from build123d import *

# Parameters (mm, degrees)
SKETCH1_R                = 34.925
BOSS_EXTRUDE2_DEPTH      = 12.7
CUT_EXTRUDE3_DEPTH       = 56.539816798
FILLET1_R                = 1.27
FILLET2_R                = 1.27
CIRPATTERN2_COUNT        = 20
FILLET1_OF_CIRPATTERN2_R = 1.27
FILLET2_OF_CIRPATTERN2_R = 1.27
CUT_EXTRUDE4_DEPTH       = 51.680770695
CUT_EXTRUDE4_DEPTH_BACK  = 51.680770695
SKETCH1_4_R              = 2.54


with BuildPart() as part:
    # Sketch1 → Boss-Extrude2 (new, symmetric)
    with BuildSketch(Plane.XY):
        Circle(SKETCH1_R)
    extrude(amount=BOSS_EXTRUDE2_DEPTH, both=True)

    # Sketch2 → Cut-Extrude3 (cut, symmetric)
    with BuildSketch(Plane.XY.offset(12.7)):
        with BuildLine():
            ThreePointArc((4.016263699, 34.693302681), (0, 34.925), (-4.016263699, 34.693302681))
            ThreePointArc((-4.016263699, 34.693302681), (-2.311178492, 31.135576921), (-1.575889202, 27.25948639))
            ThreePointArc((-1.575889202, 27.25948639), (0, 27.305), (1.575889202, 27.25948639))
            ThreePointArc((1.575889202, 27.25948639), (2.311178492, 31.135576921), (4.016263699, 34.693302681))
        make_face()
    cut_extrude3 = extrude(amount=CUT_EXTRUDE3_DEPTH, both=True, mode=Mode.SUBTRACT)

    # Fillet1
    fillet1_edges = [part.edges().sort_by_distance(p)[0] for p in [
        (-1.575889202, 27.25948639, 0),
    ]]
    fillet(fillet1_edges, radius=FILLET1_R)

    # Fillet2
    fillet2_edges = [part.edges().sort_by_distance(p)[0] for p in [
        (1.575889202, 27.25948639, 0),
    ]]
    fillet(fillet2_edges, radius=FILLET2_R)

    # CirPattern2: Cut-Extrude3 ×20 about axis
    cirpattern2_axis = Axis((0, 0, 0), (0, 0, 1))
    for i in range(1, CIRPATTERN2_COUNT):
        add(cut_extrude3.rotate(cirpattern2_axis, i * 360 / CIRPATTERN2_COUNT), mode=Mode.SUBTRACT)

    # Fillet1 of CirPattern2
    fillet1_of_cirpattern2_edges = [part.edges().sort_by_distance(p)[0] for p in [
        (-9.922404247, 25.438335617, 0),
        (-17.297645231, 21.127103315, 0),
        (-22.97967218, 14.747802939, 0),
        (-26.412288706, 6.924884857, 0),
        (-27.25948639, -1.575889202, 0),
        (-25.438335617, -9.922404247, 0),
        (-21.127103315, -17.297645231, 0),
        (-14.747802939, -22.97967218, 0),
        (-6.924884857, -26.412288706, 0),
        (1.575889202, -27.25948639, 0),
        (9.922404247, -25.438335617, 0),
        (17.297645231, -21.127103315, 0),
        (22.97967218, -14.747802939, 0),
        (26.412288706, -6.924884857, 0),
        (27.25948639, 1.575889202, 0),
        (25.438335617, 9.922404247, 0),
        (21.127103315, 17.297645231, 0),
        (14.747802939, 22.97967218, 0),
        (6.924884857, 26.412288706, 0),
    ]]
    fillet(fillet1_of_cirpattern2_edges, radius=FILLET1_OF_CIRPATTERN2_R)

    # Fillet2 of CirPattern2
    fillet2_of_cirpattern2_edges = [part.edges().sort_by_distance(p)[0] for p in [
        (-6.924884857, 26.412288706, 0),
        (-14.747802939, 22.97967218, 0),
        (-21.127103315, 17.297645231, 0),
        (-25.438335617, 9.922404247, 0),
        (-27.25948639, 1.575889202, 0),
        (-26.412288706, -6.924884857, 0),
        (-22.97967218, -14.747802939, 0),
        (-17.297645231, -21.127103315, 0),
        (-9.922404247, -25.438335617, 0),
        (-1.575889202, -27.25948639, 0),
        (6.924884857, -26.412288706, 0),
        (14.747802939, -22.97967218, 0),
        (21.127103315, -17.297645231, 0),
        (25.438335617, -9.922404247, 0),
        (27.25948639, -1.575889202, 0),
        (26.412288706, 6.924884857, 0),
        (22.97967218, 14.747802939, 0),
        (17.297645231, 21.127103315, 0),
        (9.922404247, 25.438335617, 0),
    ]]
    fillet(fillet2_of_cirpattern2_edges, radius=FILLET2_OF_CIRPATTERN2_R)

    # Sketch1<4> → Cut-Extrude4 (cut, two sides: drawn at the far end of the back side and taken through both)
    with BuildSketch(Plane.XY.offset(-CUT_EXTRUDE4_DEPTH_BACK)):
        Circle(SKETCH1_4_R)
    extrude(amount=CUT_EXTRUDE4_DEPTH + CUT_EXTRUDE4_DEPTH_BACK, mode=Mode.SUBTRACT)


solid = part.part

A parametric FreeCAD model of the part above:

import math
import FreeCAD as App
import Part
import Sketcher

V = App.Vector
Q = App.Units.Quantity


def edges_at(feature, points):
    """Names of the edges that pass closest to the given points."""
    edges = feature.Shape.Edges
    near = lambda p: min(range(len(edges)), key=lambda i: edges[i].distToShape(Part.Vertex(*p))[0])
    return sorted({f"Edge{near(p) + 1}" for p in points})

doc = App.newDocument("Part")
body = doc.addObject("PartDesign::Body", "Body")

# Sketch on XY plane
sketch1 = body.newObject("Sketcher::SketchObject", "Sketch")
sketch1.AttachmentSupport = (doc.getObject("XY_Plane"), [""])
sketch1.MapMode = "FlatFace"
sketch1.addGeometry(Part.Circle(V(0, 0, 0), V(0, 0, 1), 34.925), False)
sketch1.addConstraint(Sketcher.Constraint("Coincident", 0, 3, -1, 1))
sketch1.addConstraint(Sketcher.Constraint("Diameter", 0, Q("2.75 in")))
pad1 = body.newObject("PartDesign::Pad", "Pad")
pad1.Profile = sketch1
pad1.Length = Q("1 in")
pad1.Midplane = True

# Sketch on XY plane
sketch2 = body.newObject("Sketcher::SketchObject", "Sketch001")
sketch2.AttachmentSupport = (doc.getObject("XY_Plane"), [""])
sketch2.MapMode = "FlatFace"
sketch2.AttachmentOffset = App.Placement(V(0, 0, 0.5 * 25.4), App.Rotation())
sketch2.addGeometry(Part.ArcOfCircle(Part.Circle(V(0, 0, 0), V(0, 0, 1), 34.925), math.radians(83.396559), math.radians(96.603441)), False)
sketch2.addGeometry(Part.ArcOfCircle(Part.Circle(V(-16.799311, 26.37941, 0), V(0, 0, 1), 15.24884), math.radians(3.308625), math.radians(33.039341)), False)
sketch2.addGeometry(Part.ArcOfCircle(Part.Circle(V(0, 0, 0), V(0, 0, 1), 27.305), math.radians(86.691375), math.radians(93.308625)), False)
sketch2.addGeometry(Part.ArcOfCircle(Part.Circle(V(16.799311, 26.37941, 0), V(0, 0, 1), 15.24884), math.radians(146.960659), math.radians(176.691375)), False)
sketch2.addConstraint(Sketcher.Constraint("Coincident", 0, 2, 1, 2))
sketch2.addConstraint(Sketcher.Constraint("Coincident", 1, 1, 2, 2))
sketch2.addConstraint(Sketcher.Constraint("Coincident", 2, 1, 3, 2))
sketch2.addConstraint(Sketcher.Constraint("Coincident", 3, 1, 0, 1))
sketch2.addConstraint(Sketcher.Constraint("Coincident", 0, 3, -1, 1))
sketch2.addConstraint(Sketcher.Constraint("Coincident", 2, 3, -1, 1))
sketch2.addConstraint(Sketcher.Constraint("Radius", 0, Q("1.375 in")))
sketch2.addConstraint(Sketcher.Constraint("Radius", 2, Q("1.075 in")))
sketch2.addConstraint(Sketcher.Constraint("Radius", 1, 15.24884))
sketch2.addConstraint(Sketcher.Constraint("Radius", 3, 15.24884))
sketch2.addConstraint(Sketcher.Constraint("DistanceX", 1, 1, 3, 3, 18.375201))
sketch2.addConstraint(Sketcher.Constraint("DistanceX", 1, 3, 2, 1, 18.375201))
sketch2.addConstraint(Sketcher.Constraint("DistanceX", 1, 3, -1, 1, 16.799311))
sketch2.addConstraint(Sketcher.Constraint("DistanceY", -1, 1, 1, 3, 26.37941))
pocket1 = body.newObject("PartDesign::Pocket", "Pocket")
pocket1.Profile = sketch2
pocket1.Length = 113.079634
pocket1.Midplane = True
doc.recompute()

fillet = body.newObject("PartDesign::Fillet", "Fillet")
fillet.Base = (pocket1, edges_at(pocket1, [(-1.576, 27.259, 0)]))
fillet.Radius = Q("0.05 in")
doc.recompute()

fillet2 = body.newObject("PartDesign::Fillet", "Fillet001")
fillet2.Base = (fillet, edges_at(fillet, [(1.576, 27.259, 0)]))
fillet2.Radius = Q("0.05 in")
doc.recompute()

polarpattern = body.newObject("PartDesign::PolarPattern", "PolarPattern")
polarpattern.Originals = [pocket1]
polarpattern.Axis = (doc.getObject("Z_Axis"), [""])
polarpattern.Angle = 360
polarpattern.Occurrences = 20
body.Tip = polarpattern
doc.recompute()

fillet3 = body.newObject("PartDesign::Fillet", "Fillet002")
fillet3.Base = (polarpattern, edges_at(polarpattern, [
    (-9.922, 25.438, 0),
    (-17.298, 21.127, 0),
    (-22.98, 14.748, 0),
    (-26.412, 6.925, 0),
    (-27.259, -1.576, 0),
    (-25.438, -9.922, 0),
    (-21.127, -17.298, 0),
    (-14.748, -22.98, 0),
    (-6.925, -26.412, 0),
    (1.576, -27.259, 0),
    (9.922, -25.438, 0),
    (17.298, -21.127, 0),
    (22.98, -14.748, 0),
    (26.412, -6.925, 0),
    (27.259, 1.576, 0),
    (25.438, 9.922, 0),
    (21.127, 17.298, 0),
    (14.748, 22.98, 0),
    (6.925, 26.412, 0),
]))
fillet3.Radius = Q("0.05 in")
doc.recompute()

fillet4 = body.newObject("PartDesign::Fillet", "Fillet003")
fillet4.Base = (fillet3, edges_at(fillet3, [
    (-6.925, 26.412, 0),
    (-14.748, 22.98, 0),
    (-21.127, 17.298, 0),
    (-25.438, 9.922, 0),
    (-27.259, 1.576, 0),
    (-26.412, -6.925, 0),
    (-22.98, -14.748, 0),
    (-17.298, -21.127, 0),
    (-9.922, -25.438, 0),
    (-1.576, -27.259, 0),
    (6.925, -26.412, 0),
    (14.748, -22.98, 0),
    (21.127, -17.298, 0),
    (25.438, -9.922, 0),
    (27.259, -1.576, 0),
    (26.412, 6.925, 0),
    (22.98, 14.748, 0),
    (17.298, 21.127, 0),
    (9.922, 25.438, 0),
]))
fillet4.Radius = Q("0.05 in")

# Sketch on XY plane
sketch3 = body.newObject("Sketcher::SketchObject", "Sketch002")
sketch3.AttachmentSupport = (doc.getObject("XY_Plane"), [""])
sketch3.MapMode = "FlatFace"
sketch3.addGeometry(Part.Circle(V(0, 0, 0), V(0, 0, 1), 2.54), False)
sketch3.addConstraint(Sketcher.Constraint("Coincident", 0, 3, -1, 1))
sketch3.addConstraint(Sketcher.Constraint("Diameter", 0, Q("0.2 in")))
pocket2 = body.newObject("PartDesign::Pocket", "Pocket001")
pocket2.Profile = sketch3
pocket2.Type = "ThroughAll"
pocket2.Midplane = True

doc.recompute()
